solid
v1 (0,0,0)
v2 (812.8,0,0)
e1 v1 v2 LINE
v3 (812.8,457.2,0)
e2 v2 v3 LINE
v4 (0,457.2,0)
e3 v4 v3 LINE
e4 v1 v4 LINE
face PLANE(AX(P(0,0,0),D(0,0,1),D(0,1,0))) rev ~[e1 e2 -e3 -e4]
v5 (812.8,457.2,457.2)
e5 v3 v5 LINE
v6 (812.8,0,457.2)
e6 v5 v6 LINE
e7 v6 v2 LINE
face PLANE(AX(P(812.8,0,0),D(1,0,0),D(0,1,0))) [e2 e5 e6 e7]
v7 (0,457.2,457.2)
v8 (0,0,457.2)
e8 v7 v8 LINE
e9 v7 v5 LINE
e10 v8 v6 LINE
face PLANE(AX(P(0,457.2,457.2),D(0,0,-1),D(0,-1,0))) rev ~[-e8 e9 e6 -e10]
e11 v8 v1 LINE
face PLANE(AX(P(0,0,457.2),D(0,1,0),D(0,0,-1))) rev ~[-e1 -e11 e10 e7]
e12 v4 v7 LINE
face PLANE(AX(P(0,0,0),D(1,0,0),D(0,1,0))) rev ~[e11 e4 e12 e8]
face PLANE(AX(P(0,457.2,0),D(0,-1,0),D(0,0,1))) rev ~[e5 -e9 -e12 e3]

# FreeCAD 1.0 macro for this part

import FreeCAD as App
import Part
import Sketcher
Q = App.Units.Quantity

doc = App.newDocument("Part")
body = doc.addObject("PartDesign::Body", "Body")

# Sketch on YZ plane
sketch1 = doc.addObject("Sketcher::SketchObject", "Sketch")
body.addObject(sketch1)
sketch1.AttachmentSupport = (doc.YZ_Plane, [""])
sketch1.MapMode = "FlatFace"
sketch1.addGeometry([
    Part.LineSegment(App.Vector(0, 457, 0), App.Vector(0, 0, 0)),
    Part.LineSegment(App.Vector(0, 0, 0), App.Vector(457, 0, 0)),
    Part.LineSegment(App.Vector(457, 0, 0), App.Vector(457, 457, 0)),
    Part.LineSegment(App.Vector(457, 457, 0), App.Vector(0, 457, 0)),
], False)
sketch1.addConstraint([
    Sketcher.Constraint("Coincident", 0, 2, 1, 1),
    Sketcher.Constraint("Coincident", 1, 2, 2, 1),
    Sketcher.Constraint("Coincident", 2, 2, 3, 1),
    Sketcher.Constraint("Coincident", 3, 2, 0, 1),
    Sketcher.Constraint("Vertical", 0),
    Sketcher.Constraint("Horizontal", 1),
    Sketcher.Constraint("Vertical", 2),
    Sketcher.Constraint("Horizontal", 3),
    Sketcher.Constraint("Coincident", 0, 2, -1, 1),
    Sketcher.Constraint("Equal", 3, 0),
    Sketcher.Constraint("DistanceX", 1, 1, 1, 2, Q("18 in")),
])
pad1 = doc.addObject("PartDesign::Pad", "Pad")
body.addObject(pad1)
pad1.Profile = sketch1
pad1.Length = Q("32 in")

doc.recompute()
